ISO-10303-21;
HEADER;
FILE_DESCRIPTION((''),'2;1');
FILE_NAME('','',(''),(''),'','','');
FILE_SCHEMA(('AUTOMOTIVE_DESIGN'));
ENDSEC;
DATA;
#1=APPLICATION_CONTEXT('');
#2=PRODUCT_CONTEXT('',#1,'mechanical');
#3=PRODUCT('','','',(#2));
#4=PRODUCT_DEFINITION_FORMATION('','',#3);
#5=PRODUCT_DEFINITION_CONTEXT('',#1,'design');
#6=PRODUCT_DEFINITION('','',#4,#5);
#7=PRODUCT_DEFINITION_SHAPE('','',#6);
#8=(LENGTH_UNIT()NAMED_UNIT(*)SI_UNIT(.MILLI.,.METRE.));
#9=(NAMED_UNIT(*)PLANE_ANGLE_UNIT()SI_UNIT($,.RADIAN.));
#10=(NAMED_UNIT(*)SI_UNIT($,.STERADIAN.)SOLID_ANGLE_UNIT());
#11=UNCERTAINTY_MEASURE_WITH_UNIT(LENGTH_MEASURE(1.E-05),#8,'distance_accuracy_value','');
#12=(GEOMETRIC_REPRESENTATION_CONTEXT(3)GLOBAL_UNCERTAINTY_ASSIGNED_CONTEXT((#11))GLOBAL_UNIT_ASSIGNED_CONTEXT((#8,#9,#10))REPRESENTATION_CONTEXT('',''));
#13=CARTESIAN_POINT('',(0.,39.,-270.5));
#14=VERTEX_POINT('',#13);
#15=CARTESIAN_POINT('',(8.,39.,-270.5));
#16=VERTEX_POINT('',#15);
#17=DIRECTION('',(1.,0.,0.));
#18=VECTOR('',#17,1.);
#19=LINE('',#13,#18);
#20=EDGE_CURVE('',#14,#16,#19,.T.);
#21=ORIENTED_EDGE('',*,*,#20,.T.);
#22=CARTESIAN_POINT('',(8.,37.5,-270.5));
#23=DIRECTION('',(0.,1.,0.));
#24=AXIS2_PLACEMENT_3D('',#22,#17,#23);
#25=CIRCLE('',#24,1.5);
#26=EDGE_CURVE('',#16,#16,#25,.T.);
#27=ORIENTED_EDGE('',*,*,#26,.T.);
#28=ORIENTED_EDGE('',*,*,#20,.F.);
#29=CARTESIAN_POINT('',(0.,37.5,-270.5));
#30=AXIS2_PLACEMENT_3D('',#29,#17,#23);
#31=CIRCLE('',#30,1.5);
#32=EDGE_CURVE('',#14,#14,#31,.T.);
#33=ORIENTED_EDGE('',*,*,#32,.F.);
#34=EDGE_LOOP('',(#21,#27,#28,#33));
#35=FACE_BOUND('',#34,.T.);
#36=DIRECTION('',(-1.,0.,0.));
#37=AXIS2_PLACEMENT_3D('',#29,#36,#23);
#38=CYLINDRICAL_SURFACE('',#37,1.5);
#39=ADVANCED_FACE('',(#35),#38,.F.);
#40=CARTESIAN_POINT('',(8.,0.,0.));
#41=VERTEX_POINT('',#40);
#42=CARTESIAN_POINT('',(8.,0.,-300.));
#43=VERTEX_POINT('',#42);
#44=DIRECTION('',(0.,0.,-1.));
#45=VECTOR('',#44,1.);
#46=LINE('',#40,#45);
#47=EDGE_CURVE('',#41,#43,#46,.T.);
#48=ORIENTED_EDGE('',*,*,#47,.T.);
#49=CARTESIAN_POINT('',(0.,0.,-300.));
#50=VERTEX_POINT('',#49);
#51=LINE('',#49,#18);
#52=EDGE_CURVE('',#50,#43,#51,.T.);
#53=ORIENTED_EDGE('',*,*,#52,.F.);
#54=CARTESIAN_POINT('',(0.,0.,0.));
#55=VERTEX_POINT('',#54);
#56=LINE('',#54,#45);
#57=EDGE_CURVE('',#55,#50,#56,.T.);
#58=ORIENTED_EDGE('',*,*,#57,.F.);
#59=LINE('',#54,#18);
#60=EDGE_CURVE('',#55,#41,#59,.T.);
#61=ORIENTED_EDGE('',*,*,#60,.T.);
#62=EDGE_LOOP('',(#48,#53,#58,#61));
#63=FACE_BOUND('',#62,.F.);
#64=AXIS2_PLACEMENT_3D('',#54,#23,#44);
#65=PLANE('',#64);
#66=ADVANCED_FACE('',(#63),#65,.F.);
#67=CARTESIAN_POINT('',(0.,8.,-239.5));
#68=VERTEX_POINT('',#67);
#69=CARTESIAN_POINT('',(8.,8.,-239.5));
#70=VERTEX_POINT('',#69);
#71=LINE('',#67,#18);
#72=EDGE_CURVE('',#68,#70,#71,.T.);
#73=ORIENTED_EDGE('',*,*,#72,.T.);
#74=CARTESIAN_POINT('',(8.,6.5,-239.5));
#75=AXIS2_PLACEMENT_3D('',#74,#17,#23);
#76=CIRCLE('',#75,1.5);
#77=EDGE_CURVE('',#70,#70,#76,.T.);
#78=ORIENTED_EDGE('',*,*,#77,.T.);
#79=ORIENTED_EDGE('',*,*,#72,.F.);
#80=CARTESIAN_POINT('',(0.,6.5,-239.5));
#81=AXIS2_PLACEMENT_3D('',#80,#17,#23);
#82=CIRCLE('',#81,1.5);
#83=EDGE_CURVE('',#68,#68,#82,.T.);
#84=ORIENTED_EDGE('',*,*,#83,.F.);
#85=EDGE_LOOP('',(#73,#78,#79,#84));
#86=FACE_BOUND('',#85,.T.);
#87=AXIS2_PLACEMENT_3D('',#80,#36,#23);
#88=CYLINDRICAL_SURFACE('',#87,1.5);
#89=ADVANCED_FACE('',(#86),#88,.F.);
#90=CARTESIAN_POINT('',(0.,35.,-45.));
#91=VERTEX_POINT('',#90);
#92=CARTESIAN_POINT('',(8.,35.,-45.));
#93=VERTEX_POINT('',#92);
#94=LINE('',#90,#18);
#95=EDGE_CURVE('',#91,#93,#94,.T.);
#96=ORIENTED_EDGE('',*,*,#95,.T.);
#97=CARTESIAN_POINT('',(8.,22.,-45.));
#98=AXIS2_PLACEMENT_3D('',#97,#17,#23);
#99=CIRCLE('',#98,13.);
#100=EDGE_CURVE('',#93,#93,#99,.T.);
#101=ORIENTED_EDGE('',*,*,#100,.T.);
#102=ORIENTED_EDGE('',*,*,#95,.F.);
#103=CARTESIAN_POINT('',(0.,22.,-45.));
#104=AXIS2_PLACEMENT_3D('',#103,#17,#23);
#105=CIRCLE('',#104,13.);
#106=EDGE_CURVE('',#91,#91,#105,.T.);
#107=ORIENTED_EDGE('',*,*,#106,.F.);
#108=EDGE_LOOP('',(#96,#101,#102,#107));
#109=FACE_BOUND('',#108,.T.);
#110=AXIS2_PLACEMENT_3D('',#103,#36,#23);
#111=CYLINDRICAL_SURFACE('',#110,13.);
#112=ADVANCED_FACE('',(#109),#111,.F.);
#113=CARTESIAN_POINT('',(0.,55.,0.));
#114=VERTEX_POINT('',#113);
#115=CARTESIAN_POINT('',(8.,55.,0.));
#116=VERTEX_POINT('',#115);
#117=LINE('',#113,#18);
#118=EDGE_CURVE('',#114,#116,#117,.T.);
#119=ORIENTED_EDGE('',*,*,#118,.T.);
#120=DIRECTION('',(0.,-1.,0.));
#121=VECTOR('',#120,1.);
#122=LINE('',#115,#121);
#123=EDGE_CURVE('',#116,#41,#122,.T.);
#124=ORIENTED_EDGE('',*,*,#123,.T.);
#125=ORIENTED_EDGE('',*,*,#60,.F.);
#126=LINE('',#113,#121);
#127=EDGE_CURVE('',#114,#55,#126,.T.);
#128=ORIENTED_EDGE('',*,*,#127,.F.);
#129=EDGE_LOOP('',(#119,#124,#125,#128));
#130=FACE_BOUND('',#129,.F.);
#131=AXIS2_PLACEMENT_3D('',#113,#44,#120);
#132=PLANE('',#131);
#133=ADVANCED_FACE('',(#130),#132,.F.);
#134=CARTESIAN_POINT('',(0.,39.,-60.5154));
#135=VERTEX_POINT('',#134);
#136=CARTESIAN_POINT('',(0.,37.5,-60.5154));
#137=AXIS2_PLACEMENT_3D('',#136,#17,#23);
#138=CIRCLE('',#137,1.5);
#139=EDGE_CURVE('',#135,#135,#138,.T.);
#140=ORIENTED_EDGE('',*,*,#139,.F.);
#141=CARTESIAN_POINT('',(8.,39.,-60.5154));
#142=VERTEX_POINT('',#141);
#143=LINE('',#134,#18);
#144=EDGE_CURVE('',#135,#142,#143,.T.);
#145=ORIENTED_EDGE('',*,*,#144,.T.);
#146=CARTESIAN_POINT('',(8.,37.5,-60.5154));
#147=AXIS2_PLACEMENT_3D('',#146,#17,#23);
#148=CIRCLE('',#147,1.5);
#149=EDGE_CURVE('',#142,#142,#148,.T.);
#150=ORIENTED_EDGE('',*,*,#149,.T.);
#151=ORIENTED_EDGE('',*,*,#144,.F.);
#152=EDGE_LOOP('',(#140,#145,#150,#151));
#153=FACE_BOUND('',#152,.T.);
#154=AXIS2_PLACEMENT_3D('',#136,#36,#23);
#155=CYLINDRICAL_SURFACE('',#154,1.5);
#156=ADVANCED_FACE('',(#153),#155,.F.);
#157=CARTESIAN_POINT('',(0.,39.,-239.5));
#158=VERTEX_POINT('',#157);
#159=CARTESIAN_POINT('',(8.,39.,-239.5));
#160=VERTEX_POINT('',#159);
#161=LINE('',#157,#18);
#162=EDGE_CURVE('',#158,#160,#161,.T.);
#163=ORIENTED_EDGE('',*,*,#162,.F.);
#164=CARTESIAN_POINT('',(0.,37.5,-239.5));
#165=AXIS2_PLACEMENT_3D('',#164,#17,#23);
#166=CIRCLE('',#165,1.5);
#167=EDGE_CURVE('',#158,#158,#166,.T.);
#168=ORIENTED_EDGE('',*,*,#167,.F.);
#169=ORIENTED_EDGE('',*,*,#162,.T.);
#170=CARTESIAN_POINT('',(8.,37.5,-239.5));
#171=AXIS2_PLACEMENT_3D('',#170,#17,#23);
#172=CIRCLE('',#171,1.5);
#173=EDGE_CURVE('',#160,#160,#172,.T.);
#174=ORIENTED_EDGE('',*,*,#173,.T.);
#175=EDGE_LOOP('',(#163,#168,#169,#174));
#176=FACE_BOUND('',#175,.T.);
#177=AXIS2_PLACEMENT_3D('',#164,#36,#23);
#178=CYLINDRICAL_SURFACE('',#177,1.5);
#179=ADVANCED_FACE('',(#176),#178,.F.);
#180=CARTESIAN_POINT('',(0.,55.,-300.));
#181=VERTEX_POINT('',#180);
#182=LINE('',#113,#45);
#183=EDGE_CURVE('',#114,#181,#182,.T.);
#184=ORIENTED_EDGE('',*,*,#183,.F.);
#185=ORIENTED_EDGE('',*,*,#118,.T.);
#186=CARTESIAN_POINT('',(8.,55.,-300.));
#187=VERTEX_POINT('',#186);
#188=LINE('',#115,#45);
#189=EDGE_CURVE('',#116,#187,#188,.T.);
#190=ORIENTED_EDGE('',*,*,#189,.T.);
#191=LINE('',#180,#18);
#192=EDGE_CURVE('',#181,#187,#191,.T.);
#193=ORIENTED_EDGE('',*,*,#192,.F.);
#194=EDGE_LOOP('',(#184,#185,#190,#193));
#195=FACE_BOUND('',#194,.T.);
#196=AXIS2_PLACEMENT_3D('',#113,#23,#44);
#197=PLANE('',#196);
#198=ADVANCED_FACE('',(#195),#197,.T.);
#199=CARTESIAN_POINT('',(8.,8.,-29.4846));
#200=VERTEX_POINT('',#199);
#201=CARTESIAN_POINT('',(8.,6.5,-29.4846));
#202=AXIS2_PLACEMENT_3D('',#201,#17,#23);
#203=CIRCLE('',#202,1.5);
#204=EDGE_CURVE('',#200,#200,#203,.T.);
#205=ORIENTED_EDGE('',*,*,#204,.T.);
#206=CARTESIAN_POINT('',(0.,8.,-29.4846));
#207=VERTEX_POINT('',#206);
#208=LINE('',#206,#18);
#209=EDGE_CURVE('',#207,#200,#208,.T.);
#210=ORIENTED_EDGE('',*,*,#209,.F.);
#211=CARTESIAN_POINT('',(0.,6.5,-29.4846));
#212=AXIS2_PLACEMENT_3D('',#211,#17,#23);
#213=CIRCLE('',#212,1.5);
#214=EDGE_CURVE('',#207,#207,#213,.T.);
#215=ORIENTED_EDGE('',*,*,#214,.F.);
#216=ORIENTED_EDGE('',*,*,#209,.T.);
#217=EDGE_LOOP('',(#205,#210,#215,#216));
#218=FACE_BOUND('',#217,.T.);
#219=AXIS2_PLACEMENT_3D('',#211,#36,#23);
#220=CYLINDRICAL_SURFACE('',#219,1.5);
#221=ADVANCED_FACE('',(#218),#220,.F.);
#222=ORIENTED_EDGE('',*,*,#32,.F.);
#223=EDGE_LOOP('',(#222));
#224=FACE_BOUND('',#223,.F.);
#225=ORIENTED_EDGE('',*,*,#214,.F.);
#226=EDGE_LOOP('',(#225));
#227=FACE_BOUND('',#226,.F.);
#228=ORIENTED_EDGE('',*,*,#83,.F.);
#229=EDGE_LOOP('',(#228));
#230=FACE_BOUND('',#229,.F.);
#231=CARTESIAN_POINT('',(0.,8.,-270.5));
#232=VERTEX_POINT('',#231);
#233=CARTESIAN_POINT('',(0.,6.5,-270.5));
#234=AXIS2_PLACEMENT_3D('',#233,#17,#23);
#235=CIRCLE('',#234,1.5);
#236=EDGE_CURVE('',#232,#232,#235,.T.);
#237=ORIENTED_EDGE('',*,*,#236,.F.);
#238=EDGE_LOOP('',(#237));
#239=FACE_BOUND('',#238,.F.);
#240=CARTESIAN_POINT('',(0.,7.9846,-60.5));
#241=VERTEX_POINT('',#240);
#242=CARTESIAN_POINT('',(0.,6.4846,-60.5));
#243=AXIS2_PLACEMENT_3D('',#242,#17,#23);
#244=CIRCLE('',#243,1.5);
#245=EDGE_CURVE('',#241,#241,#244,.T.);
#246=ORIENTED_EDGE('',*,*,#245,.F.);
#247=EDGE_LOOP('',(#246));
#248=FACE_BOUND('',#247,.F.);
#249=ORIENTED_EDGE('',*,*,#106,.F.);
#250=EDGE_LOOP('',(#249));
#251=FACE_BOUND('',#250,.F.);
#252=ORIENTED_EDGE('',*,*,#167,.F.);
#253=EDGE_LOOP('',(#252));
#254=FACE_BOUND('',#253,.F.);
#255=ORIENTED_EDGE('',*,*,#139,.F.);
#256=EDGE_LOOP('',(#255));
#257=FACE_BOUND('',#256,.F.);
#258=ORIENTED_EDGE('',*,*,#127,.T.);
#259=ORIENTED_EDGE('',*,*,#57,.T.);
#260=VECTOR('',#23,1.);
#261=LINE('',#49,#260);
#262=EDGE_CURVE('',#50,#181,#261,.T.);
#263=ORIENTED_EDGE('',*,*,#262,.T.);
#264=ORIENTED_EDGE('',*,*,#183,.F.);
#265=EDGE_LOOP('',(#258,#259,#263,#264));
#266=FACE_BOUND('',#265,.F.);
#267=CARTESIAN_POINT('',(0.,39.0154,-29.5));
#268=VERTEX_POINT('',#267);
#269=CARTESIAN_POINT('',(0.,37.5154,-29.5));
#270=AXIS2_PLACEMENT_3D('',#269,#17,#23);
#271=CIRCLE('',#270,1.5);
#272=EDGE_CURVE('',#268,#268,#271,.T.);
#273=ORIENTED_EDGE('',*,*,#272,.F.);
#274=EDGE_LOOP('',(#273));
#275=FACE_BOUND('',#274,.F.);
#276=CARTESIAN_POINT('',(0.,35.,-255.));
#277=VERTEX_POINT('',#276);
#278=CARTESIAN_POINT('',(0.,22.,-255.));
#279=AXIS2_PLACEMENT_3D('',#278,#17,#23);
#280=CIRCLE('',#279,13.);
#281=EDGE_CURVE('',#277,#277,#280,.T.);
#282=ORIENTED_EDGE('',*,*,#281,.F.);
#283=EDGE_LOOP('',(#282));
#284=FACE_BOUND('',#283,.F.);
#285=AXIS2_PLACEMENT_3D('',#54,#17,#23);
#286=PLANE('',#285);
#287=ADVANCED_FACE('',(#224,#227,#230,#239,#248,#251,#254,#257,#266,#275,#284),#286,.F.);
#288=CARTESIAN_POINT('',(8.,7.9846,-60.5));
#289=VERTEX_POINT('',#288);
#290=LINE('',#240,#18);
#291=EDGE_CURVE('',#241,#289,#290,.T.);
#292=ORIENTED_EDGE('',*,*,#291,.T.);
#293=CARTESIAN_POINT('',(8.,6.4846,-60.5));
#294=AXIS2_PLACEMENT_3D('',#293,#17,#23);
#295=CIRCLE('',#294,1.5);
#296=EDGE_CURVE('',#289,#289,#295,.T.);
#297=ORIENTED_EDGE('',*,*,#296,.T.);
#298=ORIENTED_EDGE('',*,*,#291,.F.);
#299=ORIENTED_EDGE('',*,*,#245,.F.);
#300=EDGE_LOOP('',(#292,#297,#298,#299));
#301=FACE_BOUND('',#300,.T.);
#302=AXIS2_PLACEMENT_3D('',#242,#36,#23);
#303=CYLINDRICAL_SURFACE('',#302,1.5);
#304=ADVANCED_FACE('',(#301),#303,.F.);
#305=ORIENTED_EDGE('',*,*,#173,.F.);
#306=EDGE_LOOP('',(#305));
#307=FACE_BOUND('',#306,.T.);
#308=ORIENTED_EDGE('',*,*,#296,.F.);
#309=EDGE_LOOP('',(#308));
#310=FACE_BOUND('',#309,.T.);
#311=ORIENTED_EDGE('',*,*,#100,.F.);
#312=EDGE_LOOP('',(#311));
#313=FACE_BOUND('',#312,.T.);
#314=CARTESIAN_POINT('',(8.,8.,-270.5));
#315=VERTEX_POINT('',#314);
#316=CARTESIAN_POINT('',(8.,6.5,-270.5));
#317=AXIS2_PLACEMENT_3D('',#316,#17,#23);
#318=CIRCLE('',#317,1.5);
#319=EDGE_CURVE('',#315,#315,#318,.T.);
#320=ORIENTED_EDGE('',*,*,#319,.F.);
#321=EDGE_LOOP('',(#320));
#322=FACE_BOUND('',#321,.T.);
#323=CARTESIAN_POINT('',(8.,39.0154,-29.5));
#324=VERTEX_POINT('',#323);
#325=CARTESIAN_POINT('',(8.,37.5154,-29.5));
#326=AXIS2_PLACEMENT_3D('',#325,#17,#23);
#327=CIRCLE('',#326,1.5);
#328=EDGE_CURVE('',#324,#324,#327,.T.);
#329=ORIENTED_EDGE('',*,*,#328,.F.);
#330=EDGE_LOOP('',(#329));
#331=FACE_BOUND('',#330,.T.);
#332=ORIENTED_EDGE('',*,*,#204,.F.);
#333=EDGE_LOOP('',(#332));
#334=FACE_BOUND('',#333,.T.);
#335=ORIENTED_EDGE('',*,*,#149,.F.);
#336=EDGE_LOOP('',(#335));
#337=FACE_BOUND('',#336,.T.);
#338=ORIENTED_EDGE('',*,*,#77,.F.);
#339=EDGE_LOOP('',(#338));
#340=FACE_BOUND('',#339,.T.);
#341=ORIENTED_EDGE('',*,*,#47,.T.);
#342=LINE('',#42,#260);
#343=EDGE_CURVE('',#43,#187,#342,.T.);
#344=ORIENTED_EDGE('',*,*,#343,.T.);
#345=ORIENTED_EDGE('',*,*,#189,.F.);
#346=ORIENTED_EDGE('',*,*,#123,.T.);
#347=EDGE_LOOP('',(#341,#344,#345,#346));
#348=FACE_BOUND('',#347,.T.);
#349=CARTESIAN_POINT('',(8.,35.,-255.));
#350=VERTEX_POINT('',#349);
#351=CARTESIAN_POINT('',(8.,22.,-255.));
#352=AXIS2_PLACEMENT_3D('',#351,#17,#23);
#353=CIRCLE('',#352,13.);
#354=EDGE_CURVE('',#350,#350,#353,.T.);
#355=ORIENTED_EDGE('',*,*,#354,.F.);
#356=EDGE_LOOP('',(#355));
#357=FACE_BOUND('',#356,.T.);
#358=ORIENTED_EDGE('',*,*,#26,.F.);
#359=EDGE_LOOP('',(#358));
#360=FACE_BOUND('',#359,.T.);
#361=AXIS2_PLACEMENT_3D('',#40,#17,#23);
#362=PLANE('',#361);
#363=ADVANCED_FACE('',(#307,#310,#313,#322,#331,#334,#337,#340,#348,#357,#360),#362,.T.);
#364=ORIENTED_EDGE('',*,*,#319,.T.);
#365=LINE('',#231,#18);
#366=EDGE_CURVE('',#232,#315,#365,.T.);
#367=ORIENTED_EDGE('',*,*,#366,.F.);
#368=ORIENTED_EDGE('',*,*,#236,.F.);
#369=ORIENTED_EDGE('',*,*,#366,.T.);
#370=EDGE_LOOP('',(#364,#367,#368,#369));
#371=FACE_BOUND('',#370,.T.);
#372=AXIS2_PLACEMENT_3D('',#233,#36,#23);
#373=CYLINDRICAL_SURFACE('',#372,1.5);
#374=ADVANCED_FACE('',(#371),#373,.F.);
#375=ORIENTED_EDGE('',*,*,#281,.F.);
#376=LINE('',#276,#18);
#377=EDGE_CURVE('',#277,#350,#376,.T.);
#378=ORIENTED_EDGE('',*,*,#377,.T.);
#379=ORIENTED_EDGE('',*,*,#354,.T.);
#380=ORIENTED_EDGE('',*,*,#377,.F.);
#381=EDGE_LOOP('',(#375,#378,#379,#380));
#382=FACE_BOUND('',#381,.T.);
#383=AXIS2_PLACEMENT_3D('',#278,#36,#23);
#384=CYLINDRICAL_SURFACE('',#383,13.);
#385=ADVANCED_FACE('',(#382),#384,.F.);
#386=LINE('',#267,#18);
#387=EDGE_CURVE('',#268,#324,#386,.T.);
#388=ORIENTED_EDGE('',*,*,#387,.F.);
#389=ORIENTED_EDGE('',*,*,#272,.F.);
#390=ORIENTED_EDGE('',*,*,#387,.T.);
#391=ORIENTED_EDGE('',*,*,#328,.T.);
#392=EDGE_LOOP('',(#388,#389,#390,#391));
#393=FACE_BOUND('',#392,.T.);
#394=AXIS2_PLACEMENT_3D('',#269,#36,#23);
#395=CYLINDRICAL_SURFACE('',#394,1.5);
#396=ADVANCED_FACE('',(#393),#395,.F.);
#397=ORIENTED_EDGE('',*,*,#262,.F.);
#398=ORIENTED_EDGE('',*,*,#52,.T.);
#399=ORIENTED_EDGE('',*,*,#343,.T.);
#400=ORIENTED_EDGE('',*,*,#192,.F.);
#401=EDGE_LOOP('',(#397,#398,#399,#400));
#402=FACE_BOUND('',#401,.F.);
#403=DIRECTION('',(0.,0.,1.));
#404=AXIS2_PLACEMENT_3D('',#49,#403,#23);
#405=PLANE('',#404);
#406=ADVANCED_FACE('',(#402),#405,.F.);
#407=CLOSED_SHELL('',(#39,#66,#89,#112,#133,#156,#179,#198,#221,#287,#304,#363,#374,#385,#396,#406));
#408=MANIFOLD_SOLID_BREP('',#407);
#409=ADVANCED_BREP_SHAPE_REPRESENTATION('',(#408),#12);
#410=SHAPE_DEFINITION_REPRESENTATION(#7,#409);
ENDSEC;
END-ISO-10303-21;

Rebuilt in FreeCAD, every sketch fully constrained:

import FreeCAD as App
import Part
import Sketcher

V = App.Vector
Q = App.Units.Quantity

doc = App.newDocument("Part")
params = doc.addObject("Spreadsheet::Sheet", "Params")
for row, (alias, value) in enumerate([
    ("sketch1_diameter", "3 mm"),
    ("sketch1_diameter2", "26 mm"),
    ("sketch1_width", "55 mm"),
    ("sketch1_height", "300 mm"),
    ("pad1_length", "8 mm"),
], start=1):
    params.set(f"A{row}", alias)
    params.set(f"B{row}", "=" + value)
    params.setAlias(f"B{row}", alias)

body = doc.addObject("PartDesign::Body", "Body")

sketch1 = body.newObject("Sketcher::SketchObject", "Sketch")
sketch1.AttachmentSupport = (doc.getObject("YZ_Plane"), [""])
sketch1.MapMode = "FlatFace"
sketch1.addGeometry([
    Part.LineSegment(V(0, 0, 0), V(0, -300, 0)),
    Part.LineSegment(V(0, -300, 0), V(55, -300, 0)),
    Part.LineSegment(V(55, -300, 0), V(55, 0, 0)),
    Part.LineSegment(V(55, 0, 0), V(0, 0, 0)),
    Part.Circle(V(6.5, -270.5, 0), V(0, 0, 1), 1.5),
    Part.Circle(V(6.5, -239.5, 0), V(0, 0, 1), 1.5),
    Part.Circle(V(22, -255, 0), V(0, 0, 1), 13),
    Part.Circle(V(37.5, -270.5, 0), V(0, 0, 1), 1.5),
    Part.Circle(V(37.5, -239.5, 0), V(0, 0, 1), 1.5),
    Part.Circle(V(6.5, -60.5, 0), V(0, 0, 1), 1.5),
    Part.Circle(V(6.5, -29.5, 0), V(0, 0, 1), 1.5),
    Part.Circle(V(22, -45, 0), V(0, 0, 1), 13),
    Part.Circle(V(37.5, -60.5, 0), V(0, 0, 1), 1.5),
    Part.Circle(V(37.5, -29.5, 0), V(0, 0, 1), 1.5),
], False)
sketch1.addConstraint([
    Sketcher.Constraint("Coincident", 0, 2, 1, 1),
    Sketcher.Constraint("Coincident", 1, 2, 2, 1),
    Sketcher.Constraint("Coincident", 2, 2, 3, 1),
    Sketcher.Constraint("Coincident", 3, 2, 0, 1),
    Sketcher.Constraint("Vertical", 0),
    Sketcher.Constraint("Horizontal", 1),
    Sketcher.Constraint("Vertical", 2),
    Sketcher.Constraint("Horizontal", 3),
    Sketcher.Constraint("Coincident", 3, 2, -1, 1),
    Sketcher.Constraint("Equal", 4, 5),
    Sketcher.Constraint("Equal", 5, 7),
    Sketcher.Constraint("Equal", 7, 8),
    Sketcher.Constraint("Equal", 8, 9),
    Sketcher.Constraint("Equal", 9, 10),
    Sketcher.Constraint("Equal", 6, 11),
    Sketcher.Constraint("Equal", 10, 12),
    Sketcher.Constraint("Equal", 12, 13),
    Sketcher.Constraint("Horizontal", 4, 3, 7, 3),
    Sketcher.Constraint("Horizontal", 5, 3, 8, 3),
    Sketcher.Constraint("Vertical", 4, 3, 5, 3),
    Sketcher.Constraint("Vertical", 7, 3, 8, 3),
    Sketcher.Constraint("Vertical", 5, 3, 10, 3),
    Sketcher.Constraint("Vertical", 6, 3, 11, 3),
    Sketcher.Constraint("Vertical", 8, 3, 12, 3),
    Sketcher.Constraint("Diameter", 4, Q("3 mm")),
    Sketcher.Constraint("Diameter", 6, Q("26 mm")),
    Sketcher.Constraint("DistanceX", 1, 1, 1, 2, Q("55 mm")),
    Sketcher.Constraint("DistanceY", 0, 2, 0, 1, Q("300 mm")),
    Sketcher.Constraint("DistanceX", -1, 1, 6, 3, Q("22 mm")),
    Sketcher.Constraint("DistanceY", 6, 3, -1, 1, Q("255 mm")),
    Sketcher.Constraint("DistanceY", 11, 3, -1, 1, Q("45 mm")),
    Sketcher.Constraint("DistanceY", 4, 3, 5, 3, Q("31 mm")),
    Sketcher.Constraint("DistanceX", 4, 3, 7, 3, Q("31 mm")),
    Sketcher.Constraint("DistanceY", 5, 3, 9, 3, Q("179 mm")),
    Sketcher.Constraint("DistanceY", 9, 3, 13, 3, Q("31 mm")),
    Sketcher.Constraint("DistanceX", -1, 1, 4, 3, Q("6.5 mm")),
    Sketcher.Constraint("DistanceY", 4, 3, -1, 1, Q("270.5 mm")),
    Sketcher.Constraint("DistanceX", -1, 1, 9, 3, Q("6.4846 mm")),
    Sketcher.Constraint("DistanceY", 10, 3, -1, 1, Q("29.4846 mm")),
    Sketcher.Constraint("DistanceY", 12, 3, -1, 1, Q("60.5154 mm")),
    Sketcher.Constraint("DistanceX", -1, 1, 13, 3, Q("37.5154 mm")),
])
sketch1.setExpression("Constraints[24]", "Params.sketch1_diameter")
sketch1.setExpression("Constraints[25]", "Params.sketch1_diameter2")
sketch1.setExpression("Constraints[26]", "Params.sketch1_width")
sketch1.setExpression("Constraints[27]", "Params.sketch1_height")
pad1 = body.newObject("PartDesign::Pad", "Pad")
pad1.Profile = sketch1
pad1.setExpression("Length", "Params.pad1_length")

doc.recompute()
